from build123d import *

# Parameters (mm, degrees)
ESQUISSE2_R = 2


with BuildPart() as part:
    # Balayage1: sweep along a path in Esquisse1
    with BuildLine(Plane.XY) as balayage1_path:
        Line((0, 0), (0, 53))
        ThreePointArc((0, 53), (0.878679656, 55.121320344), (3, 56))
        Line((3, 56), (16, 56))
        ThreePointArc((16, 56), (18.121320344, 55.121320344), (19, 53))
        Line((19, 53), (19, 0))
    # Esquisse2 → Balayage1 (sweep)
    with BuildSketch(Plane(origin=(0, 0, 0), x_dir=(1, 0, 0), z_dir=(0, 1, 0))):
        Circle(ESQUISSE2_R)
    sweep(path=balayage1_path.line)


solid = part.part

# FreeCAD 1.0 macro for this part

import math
import FreeCAD as App
import Part
import Sketcher

V = App.Vector

doc = App.newDocument("Part")
body = doc.addObject("PartDesign::Body", "Body")

sketch1 = body.newObject("Sketcher::SketchObject", "Sketch")
sketch1.AttachmentSupport = (doc.getObject("XZ_Plane"), [""])
sketch1.MapMode = "FlatFace"
sketch1.addGeometry(Part.Circle(V(0, 0, 0), V(0, 0, 1), 2), False)
sketch1.addConstraint(Sketcher.Constraint("Coincident", 0, 3, -1, 1))
sketch1.addConstraint(Sketcher.Constraint("Diameter", 0, 4.0))

sketch2 = body.newObject("Sketcher::SketchObject", "Sketch001")
sketch2.AttachmentSupport = (doc.getObject("XY_Plane"), [""])
sketch2.MapMode = "FlatFace"
sketch2.addGeometry(Part.LineSegment(V(0, 0, 0), V(0, 53, 0)), False)
sketch2.addGeometry(Part.ArcOfCircle(Part.Circle(V(3, 53, 0), V(0, 0, 1), 3), math.radians(90), math.radians(180)), False)
sketch2.addGeometry(Part.LineSegment(V(3, 56, 0), V(16, 56, 0)), False)
sketch2.addGeometry(Part.ArcOfCircle(Part.Circle(V(16, 53, 0), V(0, 0, 1), 3), math.radians(0), math.radians(90)), False)
sketch2.addGeometry(Part.LineSegment(V(19, 53, 0), V(19, 0, 0)), False)
sketch2.addConstraint(Sketcher.Constraint("Tangent", 0, 2, 1, 2))
sketch2.addConstraint(Sketcher.Constraint("Tangent", 1, 1, 2, 1))
sketch2.addConstraint(Sketcher.Constraint("Tangent", 2, 2, 3, 2))
sketch2.addConstraint(Sketcher.Constraint("Tangent", 3, 1, 4, 1))
sketch2.addConstraint(Sketcher.Constraint("Vertical", 0))
sketch2.addConstraint(Sketcher.Constraint("Horizontal", 2))
sketch2.addConstraint(Sketcher.Constraint("Vertical", 4))
sketch2.addConstraint(Sketcher.Constraint("Coincident", 0, 1, -1, 1))
sketch2.addConstraint(Sketcher.Constraint("Equal", 1, 3))
sketch2.addConstraint(Sketcher.Constraint("PointOnObject", 4, 2, -1))
sketch2.addConstraint(Sketcher.Constraint("Radius", 1, 3.0))
sketch2.addConstraint(Sketcher.Constraint("DistanceX", 2, 1, 2, 2, 13.0))
sketch2.addConstraint(Sketcher.Constraint("DistanceY", 0, 1, 0, 2, 53.0))
doc.recompute()

additivepipe = body.newObject("PartDesign::AdditivePipe", "AdditivePipe")
additivepipe.Profile = sketch1
additivepipe.Spine = (sketch2, ["Edge1", "Edge2", "Edge3", "Edge4", "Edge5"])

doc.recompute()
